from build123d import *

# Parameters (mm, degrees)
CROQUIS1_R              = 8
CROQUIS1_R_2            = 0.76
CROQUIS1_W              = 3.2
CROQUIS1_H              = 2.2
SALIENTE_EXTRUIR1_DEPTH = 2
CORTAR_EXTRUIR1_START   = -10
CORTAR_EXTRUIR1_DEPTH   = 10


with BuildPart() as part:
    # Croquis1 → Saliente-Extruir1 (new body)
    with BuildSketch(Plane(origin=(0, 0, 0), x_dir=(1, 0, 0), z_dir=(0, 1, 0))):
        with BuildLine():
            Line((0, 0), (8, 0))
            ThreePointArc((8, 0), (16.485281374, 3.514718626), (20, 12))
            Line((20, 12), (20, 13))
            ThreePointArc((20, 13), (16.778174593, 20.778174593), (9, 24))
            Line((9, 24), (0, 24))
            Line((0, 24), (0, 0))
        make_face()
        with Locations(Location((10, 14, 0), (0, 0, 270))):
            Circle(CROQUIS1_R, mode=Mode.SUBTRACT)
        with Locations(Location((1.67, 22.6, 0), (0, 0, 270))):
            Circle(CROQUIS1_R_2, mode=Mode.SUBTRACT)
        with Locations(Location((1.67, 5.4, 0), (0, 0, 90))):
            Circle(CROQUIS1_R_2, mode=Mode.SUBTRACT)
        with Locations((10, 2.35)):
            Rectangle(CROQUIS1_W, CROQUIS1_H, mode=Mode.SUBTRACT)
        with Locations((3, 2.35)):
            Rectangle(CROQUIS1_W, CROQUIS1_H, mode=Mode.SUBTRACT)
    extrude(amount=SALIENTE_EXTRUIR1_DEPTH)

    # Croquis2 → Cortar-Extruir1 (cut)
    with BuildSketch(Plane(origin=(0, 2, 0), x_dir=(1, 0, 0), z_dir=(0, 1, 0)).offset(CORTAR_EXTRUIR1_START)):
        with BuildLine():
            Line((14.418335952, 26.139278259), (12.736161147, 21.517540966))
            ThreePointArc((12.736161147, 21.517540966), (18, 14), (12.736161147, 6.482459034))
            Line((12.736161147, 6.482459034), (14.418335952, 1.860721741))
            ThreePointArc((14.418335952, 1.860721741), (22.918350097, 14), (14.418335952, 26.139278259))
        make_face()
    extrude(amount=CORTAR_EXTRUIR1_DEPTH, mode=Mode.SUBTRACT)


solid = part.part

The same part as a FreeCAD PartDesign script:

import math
import FreeCAD as App
import Part
import Sketcher

V = App.Vector
Q = App.Units.Quantity


def add_polygon(sketch, points):
    """Adds a closed chain of lines whose ends are joined by coincident constraints."""
    first, n = sketch.GeometryCount, len(points)
    for a, b in zip(points, points[1:] + points[:1]):
        sketch.addGeometry(Part.LineSegment(App.Vector(*a, 0), App.Vector(*b, 0)), False)
    for i in range(n):
        sketch.addConstraint(Sketcher.Constraint("Coincident", first + i, 2, first + (i + 1) % n, 1))

doc = App.newDocument("Part")
body = doc.addObject("PartDesign::Body", "Body")

sketch1 = body.newObject("Sketcher::SketchObject", "Sketch")
sketch1.AttachmentSupport = (doc.getObject("XZ_Plane"), [""])
sketch1.MapMode = "FlatFace"
sketch1.addGeometry(Part.LineSegment(V(0, 0, 0), V(8, 0, 0)), False)
sketch1.addGeometry(Part.ArcOfCircle(Part.Circle(V(8, -12, 0), V(0, 0, 1), 12), math.radians(0), math.radians(90)), False)
sketch1.addGeometry(Part.LineSegment(V(20, -12, 0), V(20, -13, 0)), False)
sketch1.addGeometry(Part.ArcOfCircle(Part.Circle(V(9, -13, 0), V(0, 0, 1), 11), math.radians(-90), math.radians(0)), False)
sketch1.addGeometry(Part.LineSegment(V(9, -24, 0), V(0, -24, 0)), False)
sketch1.addGeometry(Part.LineSegment(V(0, -24, 0), V(0, 0, 0)), False)
add_polygon(sketch1, [(4.6, -1.2), (1.4, -1.2), (1.4, -3.5), (4.6, -3.5)])
sketch1.addGeometry(Part.Circle(V(1.7, -5.4, 0), V(0, 0, 1), 0.8), False)
add_polygon(sketch1, [(11.6, -1.2), (8.4, -1.2), (8.4, -3.5), (11.6, -3.5)])
sketch1.addGeometry(Part.Circle(V(1.7, -22.6, 0), V(0, 0, 1), 0.8), False)
sketch1.addGeometry(Part.Circle(V(10, -14, 0), V(0, 0, 1), 8), False)
sketch1.addConstraint([
    Sketcher.Constraint("Tangent", 0, 2, 1, 2),
    Sketcher.Constraint("Tangent", 1, 1, 2, 1),
    Sketcher.Constraint("Tangent", 2, 2, 3, 2),
    Sketcher.Constraint("Tangent", 3, 1, 4, 1),
    Sketcher.Constraint("Coincident", 4, 2, 5, 1),
    Sketcher.Constraint("Coincident", 5, 2, 0, 1),
    Sketcher.Constraint("Horizontal", 0),
    Sketcher.Constraint("Vertical", 2),
    Sketcher.Constraint("Horizontal", 4),
    Sketcher.Constraint("Vertical", 5),
    Sketcher.Constraint("Horizontal", 6),
    Sketcher.Constraint("Vertical", 7),
    Sketcher.Constraint("Horizontal", 8),
    Sketcher.Constraint("Vertical", 9),
    Sketcher.Constraint("Horizontal", 11),
    Sketcher.Constraint("Vertical", 12),
    Sketcher.Constraint("Horizontal", 13),
    Sketcher.Constraint("Vertical", 14),
    Sketcher.Constraint("Coincident", 5, 2, -1, 1),
    Sketcher.Constraint("Equal", 10, 15),
    Sketcher.Constraint("Horizontal", 9, 2, 11, 2),
    Sketcher.Constraint("Horizontal", 8, 2, 12, 2),
    Sketcher.Constraint("Vertical", 10, 3, 15, 3),
    Sketcher.Constraint("Equal", 8, 11),
    Sketcher.Constraint("Diameter", 16, Q("16 mm")),
    Sketcher.Constraint("Radius", 1, Q("12 mm")),
    Sketcher.Constraint("Radius", 3, Q("11 mm")),
    Sketcher.Constraint("Diameter", 10, Q("1.52 mm")),
    Sketcher.Constraint("DistanceX", 0, 1, 0, 2, Q("8 mm")),
    Sketcher.Constraint("DistanceY", 2, 2, 2, 1, Q("1 mm")),
    Sketcher.Constraint("DistanceX", 6, 2, 6, 1, Q("3.2 mm")),
    Sketcher.Constraint("DistanceY", 7, 2, 7, 1, Q("2.2 mm")),
    Sketcher.Constraint("DistanceX", -1, 1, 16, 3, Q("10 mm")),
    Sketcher.Constraint("DistanceY", 16, 3, -1, 1, Q("14 mm")),
    Sketcher.Constraint("DistanceX", 6, 2, 11, 2, Q("7 mm")),
    Sketcher.Constraint("DistanceY", 10, 3, -1, 1, Q("5.4 mm")),
    Sketcher.Constraint("DistanceY", 15, 3, -1, 1, Q("22.6 mm")),
    Sketcher.Constraint("DistanceX", -1, 1, 6, 2, Q("1.4 mm")),
    Sketcher.Constraint("DistanceX", -1, 1, 10, 3, Q("1.67 mm")),
    Sketcher.Constraint("DistanceY", 6, 2, -1, 1, Q("1.25 mm")),
])
pad1 = body.newObject("PartDesign::Pad", "Pad")
pad1.Profile = sketch1
pad1.Length = 2
pad1.Reversed = True

sketch2 = body.newObject("Sketcher::SketchObject", "Sketch001")
sketch2.AttachmentSupport = (doc.getObject("XZ_Plane"), [""])
sketch2.MapMode = "FlatFace"
sketch2.AttachmentOffset = App.Placement(V(0, 0, 8), App.Rotation())
sketch2.addGeometry([
    Part.LineSegment(V(14.4, -26.1, 0), V(12.7, -21.5, 0)),
    Part.ArcOfCircle(Part.Circle(V(10, -14, 0), V(0, 0, 1), 8), math.radians(-70), math.radians(70)),
    Part.LineSegment(V(12.7, -6.5, 0), V(14.4, -1.9, 0)),
    Part.ArcOfCircle(Part.Circle(V(10, -14, 0), V(0, 0, 1), 12.9), math.radians(-70), math.radians(70)),
], False)
sketch2.addConstraint([
    Sketcher.Constraint("Coincident", 0, 2, 1, 1),
    Sketcher.Constraint("Coincident", 1, 2, 2, 1),
    Sketcher.Constraint("Coincident", 2, 2, 3, 2),
    Sketcher.Constraint("Coincident", 3, 1, 0, 1),
    Sketcher.Constraint("Coincident", 3, 3, 1, 3),
    Sketcher.Constraint("Vertical", 0, 2, 1, 2),
    Sketcher.Constraint("Vertical", 2, 2, 3, 1),
    Sketcher.Constraint("Radius", 1, Q("8 mm")),
    Sketcher.Constraint("Angle", 0, Q("110 deg")),
    Sketcher.Constraint("DistanceX", -1, 1, 1, 3, Q("10 mm")),
    Sketcher.Constraint("DistanceY", 1, 3, -1, 1, Q("14 mm")),
    Sketcher.Constraint("Radius", 3, Q("12.91835 mm")),
    Sketcher.Constraint("DistanceX", -1, 1, 0, 2, Q("12.736161 mm")),
])
pocket1 = body.newObject("PartDesign::Pocket", "Pocket")
pocket1.Profile = sketch2
pocket1.Length = 10

doc.recompute()
